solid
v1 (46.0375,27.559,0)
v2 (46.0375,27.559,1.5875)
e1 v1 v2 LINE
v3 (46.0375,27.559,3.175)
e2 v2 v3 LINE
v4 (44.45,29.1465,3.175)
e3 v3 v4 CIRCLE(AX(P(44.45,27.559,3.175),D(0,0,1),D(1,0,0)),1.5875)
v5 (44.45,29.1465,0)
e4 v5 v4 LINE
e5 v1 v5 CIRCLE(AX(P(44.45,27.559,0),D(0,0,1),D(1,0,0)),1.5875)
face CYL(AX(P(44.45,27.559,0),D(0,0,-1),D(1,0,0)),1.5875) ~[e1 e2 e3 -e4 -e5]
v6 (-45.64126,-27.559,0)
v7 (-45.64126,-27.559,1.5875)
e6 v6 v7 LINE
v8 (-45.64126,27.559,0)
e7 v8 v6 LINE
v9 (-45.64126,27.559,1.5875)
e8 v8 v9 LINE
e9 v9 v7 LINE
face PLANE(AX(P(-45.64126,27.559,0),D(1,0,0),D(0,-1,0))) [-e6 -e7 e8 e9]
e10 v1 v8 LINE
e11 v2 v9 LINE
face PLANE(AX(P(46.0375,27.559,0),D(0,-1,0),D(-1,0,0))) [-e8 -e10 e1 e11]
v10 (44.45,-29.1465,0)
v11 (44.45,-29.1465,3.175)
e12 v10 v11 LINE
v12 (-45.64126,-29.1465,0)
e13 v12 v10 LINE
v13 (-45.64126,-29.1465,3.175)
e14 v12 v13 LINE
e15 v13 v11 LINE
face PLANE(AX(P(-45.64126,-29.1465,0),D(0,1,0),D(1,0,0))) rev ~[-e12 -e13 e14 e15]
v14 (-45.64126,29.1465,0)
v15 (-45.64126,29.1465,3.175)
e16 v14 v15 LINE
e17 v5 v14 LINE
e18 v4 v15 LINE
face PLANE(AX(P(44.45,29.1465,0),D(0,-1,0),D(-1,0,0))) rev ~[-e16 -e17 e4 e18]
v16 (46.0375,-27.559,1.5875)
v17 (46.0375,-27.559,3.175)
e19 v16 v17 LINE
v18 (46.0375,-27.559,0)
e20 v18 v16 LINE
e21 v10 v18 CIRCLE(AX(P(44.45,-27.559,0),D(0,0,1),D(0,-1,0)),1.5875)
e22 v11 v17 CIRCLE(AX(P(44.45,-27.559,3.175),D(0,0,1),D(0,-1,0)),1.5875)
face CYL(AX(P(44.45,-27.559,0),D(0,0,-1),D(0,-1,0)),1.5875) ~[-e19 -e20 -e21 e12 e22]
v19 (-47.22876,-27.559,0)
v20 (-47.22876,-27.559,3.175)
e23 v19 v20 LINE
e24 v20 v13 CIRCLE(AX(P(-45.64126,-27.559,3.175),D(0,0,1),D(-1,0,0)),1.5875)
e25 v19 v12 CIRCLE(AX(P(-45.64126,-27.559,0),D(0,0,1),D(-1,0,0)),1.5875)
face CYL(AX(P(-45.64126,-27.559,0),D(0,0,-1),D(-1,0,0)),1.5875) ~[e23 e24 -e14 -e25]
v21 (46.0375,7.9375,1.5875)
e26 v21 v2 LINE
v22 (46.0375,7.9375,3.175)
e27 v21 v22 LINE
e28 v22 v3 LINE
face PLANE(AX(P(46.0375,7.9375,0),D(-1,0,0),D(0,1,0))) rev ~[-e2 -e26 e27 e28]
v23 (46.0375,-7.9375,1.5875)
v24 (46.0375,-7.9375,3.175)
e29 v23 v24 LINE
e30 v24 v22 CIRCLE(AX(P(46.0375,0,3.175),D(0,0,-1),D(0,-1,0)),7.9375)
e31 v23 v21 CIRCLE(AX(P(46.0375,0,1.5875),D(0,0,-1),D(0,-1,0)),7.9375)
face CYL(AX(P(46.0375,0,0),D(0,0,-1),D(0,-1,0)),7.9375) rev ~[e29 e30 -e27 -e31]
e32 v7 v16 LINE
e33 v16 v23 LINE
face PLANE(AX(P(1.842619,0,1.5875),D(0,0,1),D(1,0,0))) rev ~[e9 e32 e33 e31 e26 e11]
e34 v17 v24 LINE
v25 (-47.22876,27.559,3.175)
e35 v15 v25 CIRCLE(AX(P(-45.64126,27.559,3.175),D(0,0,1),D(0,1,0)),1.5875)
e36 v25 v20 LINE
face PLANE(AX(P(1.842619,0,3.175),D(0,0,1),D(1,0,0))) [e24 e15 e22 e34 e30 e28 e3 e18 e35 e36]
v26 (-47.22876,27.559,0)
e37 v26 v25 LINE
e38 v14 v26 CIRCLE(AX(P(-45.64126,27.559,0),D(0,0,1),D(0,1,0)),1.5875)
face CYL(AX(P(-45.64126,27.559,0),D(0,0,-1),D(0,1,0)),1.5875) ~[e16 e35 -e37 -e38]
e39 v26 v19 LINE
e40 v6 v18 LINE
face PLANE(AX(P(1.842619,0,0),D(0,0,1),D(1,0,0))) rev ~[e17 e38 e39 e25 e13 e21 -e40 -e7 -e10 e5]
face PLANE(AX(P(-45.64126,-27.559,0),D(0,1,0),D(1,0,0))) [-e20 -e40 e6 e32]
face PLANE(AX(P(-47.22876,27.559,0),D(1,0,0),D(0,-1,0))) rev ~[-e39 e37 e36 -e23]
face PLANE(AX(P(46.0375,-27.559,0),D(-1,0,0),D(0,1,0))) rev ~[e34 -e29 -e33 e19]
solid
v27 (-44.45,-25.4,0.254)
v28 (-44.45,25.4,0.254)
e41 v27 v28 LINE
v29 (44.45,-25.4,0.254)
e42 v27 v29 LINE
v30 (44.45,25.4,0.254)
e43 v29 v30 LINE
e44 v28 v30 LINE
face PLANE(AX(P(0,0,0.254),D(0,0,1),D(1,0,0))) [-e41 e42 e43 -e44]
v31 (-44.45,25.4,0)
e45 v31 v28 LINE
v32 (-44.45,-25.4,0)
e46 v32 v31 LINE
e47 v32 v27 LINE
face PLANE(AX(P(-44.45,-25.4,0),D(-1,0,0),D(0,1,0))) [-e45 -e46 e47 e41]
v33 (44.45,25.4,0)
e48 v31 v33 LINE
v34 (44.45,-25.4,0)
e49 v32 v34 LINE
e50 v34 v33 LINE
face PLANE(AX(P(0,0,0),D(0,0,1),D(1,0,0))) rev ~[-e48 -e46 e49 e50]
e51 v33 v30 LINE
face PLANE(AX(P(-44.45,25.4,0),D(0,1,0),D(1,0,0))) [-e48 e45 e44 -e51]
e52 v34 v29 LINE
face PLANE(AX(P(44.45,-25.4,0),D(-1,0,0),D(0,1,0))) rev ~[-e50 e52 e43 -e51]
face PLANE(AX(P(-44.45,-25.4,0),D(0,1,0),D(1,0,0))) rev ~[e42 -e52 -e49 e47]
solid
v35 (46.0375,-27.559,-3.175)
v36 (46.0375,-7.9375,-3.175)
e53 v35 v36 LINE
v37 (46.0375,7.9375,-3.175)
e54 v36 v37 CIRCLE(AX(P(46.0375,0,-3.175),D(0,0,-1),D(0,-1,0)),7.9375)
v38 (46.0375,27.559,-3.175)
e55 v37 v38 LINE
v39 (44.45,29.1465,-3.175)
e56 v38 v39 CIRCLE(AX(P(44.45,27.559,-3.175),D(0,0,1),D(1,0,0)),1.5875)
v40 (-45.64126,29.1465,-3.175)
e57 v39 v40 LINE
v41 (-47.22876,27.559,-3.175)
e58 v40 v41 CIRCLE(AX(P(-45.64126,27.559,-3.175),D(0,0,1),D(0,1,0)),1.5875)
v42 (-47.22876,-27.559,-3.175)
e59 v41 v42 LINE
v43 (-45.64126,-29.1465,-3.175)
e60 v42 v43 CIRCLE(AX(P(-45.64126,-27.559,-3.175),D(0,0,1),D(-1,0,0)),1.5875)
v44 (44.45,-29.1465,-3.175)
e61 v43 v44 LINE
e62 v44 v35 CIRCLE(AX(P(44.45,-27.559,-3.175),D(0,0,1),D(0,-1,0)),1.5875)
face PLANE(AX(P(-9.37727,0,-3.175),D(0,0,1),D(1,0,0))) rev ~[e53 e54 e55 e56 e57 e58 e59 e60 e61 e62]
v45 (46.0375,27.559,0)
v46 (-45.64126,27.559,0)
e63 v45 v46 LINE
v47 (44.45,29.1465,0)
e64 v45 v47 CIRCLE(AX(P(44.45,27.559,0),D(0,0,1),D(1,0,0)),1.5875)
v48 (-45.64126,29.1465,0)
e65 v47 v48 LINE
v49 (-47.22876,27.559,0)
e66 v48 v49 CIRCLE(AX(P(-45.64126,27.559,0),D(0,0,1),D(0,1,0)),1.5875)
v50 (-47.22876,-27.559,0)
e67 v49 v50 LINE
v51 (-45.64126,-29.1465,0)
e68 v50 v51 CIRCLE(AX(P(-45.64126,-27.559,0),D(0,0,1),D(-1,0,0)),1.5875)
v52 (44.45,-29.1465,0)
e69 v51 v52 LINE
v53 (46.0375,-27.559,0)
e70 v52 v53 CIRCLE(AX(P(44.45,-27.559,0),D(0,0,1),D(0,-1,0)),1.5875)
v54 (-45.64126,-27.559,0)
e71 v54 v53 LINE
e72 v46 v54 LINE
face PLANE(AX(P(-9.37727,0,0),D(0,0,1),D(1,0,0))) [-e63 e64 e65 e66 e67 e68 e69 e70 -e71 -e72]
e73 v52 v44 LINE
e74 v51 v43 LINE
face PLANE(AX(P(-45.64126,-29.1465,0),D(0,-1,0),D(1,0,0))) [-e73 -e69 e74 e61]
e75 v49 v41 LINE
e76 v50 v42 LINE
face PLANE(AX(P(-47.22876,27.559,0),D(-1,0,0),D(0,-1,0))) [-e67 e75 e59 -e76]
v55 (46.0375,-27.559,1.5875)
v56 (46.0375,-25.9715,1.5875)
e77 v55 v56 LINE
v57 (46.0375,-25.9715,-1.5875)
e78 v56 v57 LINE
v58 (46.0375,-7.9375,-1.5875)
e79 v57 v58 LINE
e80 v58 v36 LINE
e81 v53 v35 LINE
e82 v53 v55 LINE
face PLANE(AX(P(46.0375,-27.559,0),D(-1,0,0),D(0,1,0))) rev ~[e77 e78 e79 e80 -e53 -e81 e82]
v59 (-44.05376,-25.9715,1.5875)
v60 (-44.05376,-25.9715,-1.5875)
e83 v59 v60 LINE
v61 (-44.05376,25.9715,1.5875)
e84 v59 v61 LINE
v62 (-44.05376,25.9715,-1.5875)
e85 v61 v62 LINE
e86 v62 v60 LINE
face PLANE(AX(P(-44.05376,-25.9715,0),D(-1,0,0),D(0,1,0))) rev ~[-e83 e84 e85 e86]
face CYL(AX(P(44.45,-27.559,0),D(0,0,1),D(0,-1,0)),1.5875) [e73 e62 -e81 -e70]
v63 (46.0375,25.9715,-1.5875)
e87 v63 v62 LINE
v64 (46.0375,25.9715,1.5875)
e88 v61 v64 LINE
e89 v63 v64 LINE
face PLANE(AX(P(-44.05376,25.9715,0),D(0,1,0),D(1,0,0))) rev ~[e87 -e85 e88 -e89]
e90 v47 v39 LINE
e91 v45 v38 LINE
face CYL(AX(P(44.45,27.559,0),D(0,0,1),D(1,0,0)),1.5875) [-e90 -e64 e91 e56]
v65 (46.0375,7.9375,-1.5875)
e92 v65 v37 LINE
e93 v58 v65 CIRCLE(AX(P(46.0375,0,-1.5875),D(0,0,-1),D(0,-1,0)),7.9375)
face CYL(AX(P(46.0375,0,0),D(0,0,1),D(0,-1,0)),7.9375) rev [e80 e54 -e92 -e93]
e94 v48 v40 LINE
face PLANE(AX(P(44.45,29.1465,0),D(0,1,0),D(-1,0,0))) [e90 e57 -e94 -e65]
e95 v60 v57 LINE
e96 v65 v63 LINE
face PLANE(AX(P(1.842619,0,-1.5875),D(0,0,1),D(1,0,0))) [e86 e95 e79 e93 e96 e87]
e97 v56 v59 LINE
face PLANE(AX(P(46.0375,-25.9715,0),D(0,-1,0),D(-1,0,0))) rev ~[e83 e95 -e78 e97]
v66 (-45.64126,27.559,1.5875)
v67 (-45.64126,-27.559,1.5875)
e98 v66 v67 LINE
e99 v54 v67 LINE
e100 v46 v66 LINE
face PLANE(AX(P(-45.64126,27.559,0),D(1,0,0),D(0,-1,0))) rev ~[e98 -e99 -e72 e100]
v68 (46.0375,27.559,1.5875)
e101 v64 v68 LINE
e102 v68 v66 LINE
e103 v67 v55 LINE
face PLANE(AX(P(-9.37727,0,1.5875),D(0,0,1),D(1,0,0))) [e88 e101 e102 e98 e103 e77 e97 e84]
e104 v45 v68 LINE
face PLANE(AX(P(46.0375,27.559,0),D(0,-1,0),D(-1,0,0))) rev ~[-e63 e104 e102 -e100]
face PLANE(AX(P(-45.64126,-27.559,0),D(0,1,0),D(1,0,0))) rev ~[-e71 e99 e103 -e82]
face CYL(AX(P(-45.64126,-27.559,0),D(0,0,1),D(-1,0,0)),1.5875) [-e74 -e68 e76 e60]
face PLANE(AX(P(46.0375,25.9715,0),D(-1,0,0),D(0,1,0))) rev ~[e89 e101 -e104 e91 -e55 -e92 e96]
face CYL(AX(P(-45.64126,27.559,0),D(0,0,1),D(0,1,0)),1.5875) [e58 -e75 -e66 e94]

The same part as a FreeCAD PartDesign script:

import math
import FreeCAD as App
import Part
import Sketcher
from FreeCAD import Vector
Q = App.Units.Quantity


def add_polygon(sketch, points):
    """Adds a closed chain of lines whose ends are joined by coincident constraints."""
    first, n = sketch.GeometryCount, len(points)
    for a, b in zip(points, points[1:] + points[:1]):
        sketch.addGeometry(Part.LineSegment(App.Vector(*a, 0), App.Vector(*b, 0)), False)
    for i in range(n):
        sketch.addConstraint(Sketcher.Constraint("Coincident", first + i, 2, first + (i + 1) % n, 1))

doc = App.newDocument("Part")
params = doc.addObject("Spreadsheet::Sheet", "Params")
for row, (alias, value) in enumerate([
    ("sketch1_height", "2 in"),
    ("sketch1_width", "3.5 in"),
    ("pad1_length", "0.01 in"),
    ("sketch2_radius", "0.3125 in"),
    ("sketch2_radius2", "0.0625 in"),
    ("sketch2_height", "2.17 in"),
    ("pad2_length", "0.125 in"),
    ("sketch3_radius", "0.3125 in"),
    ("sketch3_height", "0.71 in"),
    ("pocket1_length", "0.0625 in"),
    ("sketch4_height", "2.17 in"),
    ("sketch4_height2", "0.0625 in"),
    ("pad3_length", "0.0625 in"),
    ("sketch5_radius", "0.0625 in"),
    ("sketch5_radius2", "0.3125 in"),
    ("sketch5_height", "2.17 in"),
    ("pad4_length", "0.125 in"),
    ("sketch6_radius", "0.3125 in"),
    ("sketch6_height", "2.17 in"),
    ("pocket2_length", "0.0625 in"),
], start=1):
    params.set(f"A{row}", alias)
    params.set(f"B{row}", "=" + value)
    params.setAlias(f"B{row}", alias)

body = doc.addObject("PartDesign::Body", "Body")

sketch1 = body.newObject("Sketcher::SketchObject", "Sketch")
sketch1.AttachmentSupport = (doc.getObject("XY_Plane"), [""])
sketch1.MapMode = "FlatFace"
add_polygon(sketch1, [(-44.45, 25.4), (-44.45, -25.4), (44.45, -25.4), (44.45, 25.4)])
sketch1.addConstraint(Sketcher.Constraint("Vertical", 0))
sketch1.addConstraint(Sketcher.Constraint("Horizontal", 1))
sketch1.addConstraint(Sketcher.Constraint("Vertical", 2))
sketch1.addConstraint(Sketcher.Constraint("Horizontal", 3))
sketch1.addConstraint(Sketcher.Constraint("Symmetric", 0, 2, 2, 2, -1, 1))
sketch1.addConstraint(Sketcher.Constraint("DistanceY", 0, 2, 0, 1, Q("2 in")))
sketch1.addConstraint(Sketcher.Constraint("DistanceX", 1, 1, 1, 2, Q("3.5 in")))
sketch1.setExpression("Constraints[9]", "Params.sketch1_height")
sketch1.setExpression("Constraints[10]", "Params.sketch1_width")
pad1 = body.newObject("PartDesign::Pad", "Pad")
pad1.Profile = sketch1
pad1.setExpression("Length", "Params.pad1_length")
body2 = doc.addObject("PartDesign::Body", "Body001")

sketch2 = body2.newObject("Sketcher::SketchObject", "Sketch001")
sketch2.AttachmentSupport = (doc.getObject("XY_Plane001"), [""])
sketch2.MapMode = "FlatFace"
sketch2.addGeometry(Part.LineSegment(Vector(46.0375, -27.559, 0), Vector(46.0375, -7.9375, 0)), False)
sketch2.addGeometry(Part.ArcOfCircle(Part.Circle(Vector(46.0375, 0, 0), Vector(0, 0, 1), 7.9375), math.radians(90), math.radians(270)), False)
sketch2.addGeometry(Part.LineSegment(Vector(46.0375, 7.9375, 0), Vector(46.0375, 27.559, 0)), False)
sketch2.addGeometry(Part.ArcOfCircle(Part.Circle(Vector(44.45, 27.559, 0), Vector(0, 0, 1), 1.5875), math.radians(0), math.radians(90)), False)
sketch2.addGeometry(Part.LineSegment(Vector(44.45, 29.1465, 0), Vector(-45.64126, 29.1465, 0)), False)
sketch2.addGeometry(Part.ArcOfCircle(Part.Circle(Vector(-45.64126, 27.559, 0), Vector(0, 0, 1), 1.5875), math.radians(90), math.radians(180)), False)
sketch2.addGeometry(Part.LineSegment(Vector(-47.22876, 27.559, 0), Vector(-47.22876, -27.559, 0)), False)
sketch2.addGeometry(Part.ArcOfCircle(Part.Circle(Vector(-45.64126, -27.559, 0), Vector(0, 0, 1), 1.5875), math.radians(180), math.radians(270)), False)
sketch2.addGeometry(Part.LineSegment(Vector(-45.64126, -29.1465, 0), Vector(44.45, -29.1465, 0)), False)
sketch2.addGeometry(Part.ArcOfCircle(Part.Circle(Vector(44.45, -27.559, 0), Vector(0, 0, 1), 1.5875), math.radians(-90), math.radians(0)), False)
sketch2.addConstraint(Sketcher.Constraint("Coincident", 0, 2, 1, 2))
sketch2.addConstraint(Sketcher.Constraint("Coincident", 1, 1, 2, 1))
sketch2.addConstraint(Sketcher.Constraint("Tangent", 2, 2, 3, 1))
sketch2.addConstraint(Sketcher.Constraint("Tangent", 3, 2, 4, 1))
sketch2.addConstraint(Sketcher.Constraint("Tangent", 4, 2, 5, 1))
sketch2.addConstraint(Sketcher.Constraint("Tangent", 5, 2, 6, 1))
sketch2.addConstraint(Sketcher.Constraint("Tangent", 6, 2, 7, 1))
sketch2.addConstraint(Sketcher.Constraint("Tangent", 7, 2, 8, 1))
sketch2.addConstraint(Sketcher.Constraint("Tangent", 8, 2, 9, 1))
sketch2.addConstraint(Sketcher.Constraint("Tangent", 9, 2, 0, 1))
sketch2.addConstraint(Sketcher.Constraint("Vertical", 0))
sketch2.addConstraint(Sketcher.Constraint("Vertical", 2))
sketch2.addConstraint(Sketcher.Constraint("Horizontal", 4))
sketch2.addConstraint(Sketcher.Constraint("Vertical", 6))
sketch2.addConstraint(Sketcher.Constraint("Horizontal", 8))
sketch2.addConstraint(Sketcher.Constraint("Equal", 3, 5))
sketch2.addConstraint(Sketcher.Constraint("Equal", 5, 7))
sketch2.addConstraint(Sketcher.Constraint("Equal", 7, 9))
sketch2.addConstraint(Sketcher.Constraint("Symmetric", 3, 3, 9, 3, -1))
sketch2.addConstraint(Sketcher.Constraint("PointOnObject", 1, 3, -1))
sketch2.addConstraint(Sketcher.Constraint("Vertical", 1, 3, 0, 2))
sketch2.addConstraint(Sketcher.Constraint("Radius", 1, Q("0.3125 in")))
sketch2.addConstraint(Sketcher.Constraint("Radius", 3, Q("0.0625 in")))
sketch2.addConstraint(Sketcher.Constraint("DistanceY", 6, 2, 6, 1, Q("2.17 in")))
sketch2.addConstraint(Sketcher.Constraint("DistanceX", -1, 1, 3, 3, Q("1.75 in")))
sketch2.addConstraint(Sketcher.Constraint("DistanceX", 4, 2, 4, 1, Q("3.5469 in")))
sketch2.setExpression("Constraints[21]", "Params.sketch2_radius")
sketch2.setExpression("Constraints[22]", "Params.sketch2_radius2")
sketch2.setExpression("Constraints[23]", "Params.sketch2_height")
pad2 = body2.newObject("PartDesign::Pad", "Pad001")
pad2.Profile = sketch2
pad2.setExpression("Length", "Params.pad2_length")
pad2.Reversed = True

sketch3 = body2.newObject("Sketcher::SketchObject", "Sketch002")
sketch3.AttachmentSupport = (doc.getObject("XY_Plane001"), [""])
sketch3.MapMode = "FlatFace"
sketch3.addGeometry(Part.LineSegment(Vector(46.0375, 7.9375, 0), Vector(46.0375, 25.9715, 0)), False)
sketch3.addGeometry(Part.LineSegment(Vector(46.0375, 25.9715, 0), Vector(-44.05376, 25.9715, 0)), False)
sketch3.addGeometry(Part.LineSegment(Vector(-44.05376, 25.9715, 0), Vector(-44.05376, -25.9715, 0)), False)
sketch3.addGeometry(Part.LineSegment(Vector(-44.05376, -25.9715, 0), Vector(46.0375, -25.9715, 0)), False)
sketch3.addGeometry(Part.LineSegment(Vector(46.0375, -25.9715, 0), Vector(46.0375, -7.9375, 0)), False)
sketch3.addGeometry(Part.ArcOfCircle(Part.Circle(Vector(46.0375, 0, 0), Vector(0, 0, 1), 7.9375), math.radians(90), math.radians(270)), False)
sketch3.addConstraint(Sketcher.Constraint("Coincident", 0, 2, 1, 1))
sketch3.addConstraint(Sketcher.Constraint("Coincident", 1, 2, 2, 1))
sketch3.addConstraint(Sketcher.Constraint("Coincident", 2, 2, 3, 1))
sketch3.addConstraint(Sketcher.Constraint("Coincident", 3, 2, 4, 1))
sketch3.addConstraint(Sketcher.Constraint("Coincident", 4, 2, 5, 2))
sketch3.addConstraint(Sketcher.Constraint("Coincident", 5, 1, 0, 1))
sketch3.addConstraint(Sketcher.Constraint("Vertical", 0))
sketch3.addConstraint(Sketcher.Constraint("Horizontal", 1))
sketch3.addConstraint(Sketcher.Constraint("Vertical", 2))
sketch3.addConstraint(Sketcher.Constraint("Horizontal", 3))
sketch3.addConstraint(Sketcher.Constraint("Vertical", 4))
sketch3.addConstraint(Sketcher.Constraint("Symmetric", 0, 2, 3, 2, -1))
sketch3.addConstraint(Sketcher.Constraint("PointOnObject", 5, 3, -1))
sketch3.addConstraint(Sketcher.Constraint("Vertical", 5, 3, 0, 2))
sketch3.addConstraint(Sketcher.Constraint("Radius", 5, Q("0.3125 in")))
sketch3.addConstraint(Sketcher.Constraint("DistanceY", 0, 1, 0, 2, Q("0.71 in")))
sketch3.addConstraint(Sketcher.Constraint("DistanceX", 1, 2, 1, 1, Q("3.5469 in")))
sketch3.addConstraint(Sketcher.Constraint("DistanceX", -1, 1, 5, 3, Q("1.8125 in")))
sketch3.setExpression("Constraints[14]", "Params.sketch3_radius")
sketch3.setExpression("Constraints[15]", "Params.sketch3_height")
pocket1 = body2.newObject("PartDesign::Pocket", "Pocket")
pocket1.Profile = sketch3
pocket1.setExpression("Length", "Params.pocket1_length")

sketch4 = body2.newObject("Sketcher::SketchObject", "Sketch003")
sketch4.AttachmentSupport = (doc.getObject("XY_Plane001"), [""])
sketch4.MapMode = "FlatFace"
add_polygon(sketch4, [(-44.05376, 25.9715), (46.0375, 25.9715), (46.0375, 27.559), (-45.64126, 27.559), (-45.64126, -27.559), (46.0375, -27.559), (46.0375, -25.9715), (-44.05376, -25.9715)])
sketch4.addConstraint(Sketcher.Constraint("Horizontal", 0))
sketch4.addConstraint(Sketcher.Constraint("Vertical", 1))
sketch4.addConstraint(Sketcher.Constraint("Horizontal", 2))
sketch4.addConstraint(Sketcher.Constraint("Vertical", 3))
sketch4.addConstraint(Sketcher.Constraint("Horizontal", 4))
sketch4.addConstraint(Sketcher.Constraint("Vertical", 5))
sketch4.addConstraint(Sketcher.Constraint("Horizontal", 6))
sketch4.addConstraint(Sketcher.Constraint("Vertical", 7))
sketch4.addConstraint(Sketcher.Constraint("Symmetric", 1, 2, 4, 2, -1))
sketch4.addConstraint(Sketcher.Constraint("Equal", 1, 5))
sketch4.addConstraint(Sketcher.Constraint("DistanceY", 3, 2, 3, 1, Q("2.17 in")))
sketch4.addConstraint(Sketcher.Constraint("DistanceY", 1, 1, 1, 2, Q("0.0625 in")))
sketch4.addConstraint(Sketcher.Constraint("DistanceX", 0, 1, 0, 2, Q("3.5469 in")))
sketch4.addConstraint(Sketcher.Constraint("DistanceX", 2, 2, 2, 1, Q("3.6094 in")))
sketch4.addConstraint(Sketcher.Constraint("DistanceX", -1, 1, 0, 2, Q("1.8125 in")))
sketch4.setExpression("Constraints[18]", "Params.sketch4_height")
sketch4.setExpression("Constraints[19]", "Params.sketch4_height2")
pad3 = body2.newObject("PartDesign::Pad", "Pad002")
pad3.Profile = sketch4
pad3.setExpression("Length", "Params.pad3_length")
body3 = doc.addObject("PartDesign::Body", "Body002")

sketch5 = body3.newObject("Sketcher::SketchObject", "Sketch004")
sketch5.AttachmentSupport = (doc.getObject("XY_Plane002"), [""])
sketch5.MapMode = "FlatFace"
sketch5.addGeometry(Part.LineSegment(Vector(46.0375, 7.9375, 0), Vector(46.0375, 27.559, 0)), False)
sketch5.addGeometry(Part.ArcOfCircle(Part.Circle(Vector(44.45, 27.559, 0), Vector(0, 0, 1), 1.5875), math.radians(0), math.radians(90)), False)
sketch5.addGeometry(Part.LineSegment(Vector(44.45, 29.1465, 0), Vector(-45.64126, 29.1465, 0)), False)
sketch5.addGeometry(Part.ArcOfCircle(Part.Circle(Vector(-45.64126, 27.559, 0), Vector(0, 0, 1), 1.5875), math.radians(90), math.radians(180)), False)
sketch5.addGeometry(Part.LineSegment(Vector(-47.22876, 27.559, 0), Vector(-47.22876, -27.559, 0)), False)
sketch5.addGeometry(Part.ArcOfCircle(Part.Circle(Vector(-45.64126, -27.559, 0), Vector(0, 0, 1), 1.5875), math.radians(180), math.radians(270)), False)
sketch5.addGeometry(Part.LineSegment(Vector(-45.64126, -29.1465, 0), Vector(44.45, -29.1465, 0)), False)
sketch5.addGeometry(Part.ArcOfCircle(Part.Circle(Vector(44.45, -27.559, 0), Vector(0, 0, 1), 1.5875), math.radians(-90), math.radians(0)), False)
sketch5.addGeometry(Part.LineSegment(Vector(46.0375, -27.559, 0), Vector(46.0375, -7.9375, 0)), False)
sketch5.addGeometry(Part.ArcOfCircle(Part.Circle(Vector(46.0375, 0, 0), Vector(0, 0, 1), 7.9375), math.radians(90), math.radians(270)), False)
sketch5.addConstraint(Sketcher.Constraint("Tangent", 0, 2, 1, 1))
sketch5.addConstraint(Sketcher.Constraint("Tangent", 1, 2, 2, 1))
sketch5.addConstraint(Sketcher.Constraint("Tangent", 2, 2, 3, 1))
sketch5.addConstraint(Sketcher.Constraint("Tangent", 3, 2, 4, 1))
sketch5.addConstraint(Sketcher.Constraint("Tangent", 4, 2, 5, 1))
sketch5.addConstraint(Sketcher.Constraint("Tangent", 5, 2, 6, 1))
sketch5.addConstraint(Sketcher.Constraint("Tangent", 6, 2, 7, 1))
sketch5.addConstraint(Sketcher.Constraint("Tangent", 7, 2, 8, 1))
sketch5.addConstraint(Sketcher.Constraint("Coincident", 8, 2, 9, 2))
sketch5.addConstraint(Sketcher.Constraint("Coincident", 9, 1, 0, 1))
sketch5.addConstraint(Sketcher.Constraint("Vertical", 0))
sketch5.addConstraint(Sketcher.Constraint("Horizontal", 2))
sketch5.addConstraint(Sketcher.Constraint("Vertical", 4))
sketch5.addConstraint(Sketcher.Constraint("Horizontal", 6))
sketch5.addConstraint(Sketcher.Constraint("Vertical", 8))
sketch5.addConstraint(Sketcher.Constraint("Equal", 1, 3))
sketch5.addConstraint(Sketcher.Constraint("Equal", 3, 5))
sketch5.addConstraint(Sketcher.Constraint("Equal", 5, 7))
sketch5.addConstraint(Sketcher.Constraint("Symmetric", 1, 3, 7, 3, -1))
sketch5.addConstraint(Sketcher.Constraint("PointOnObject", 9, 3, -1))
sketch5.addConstraint(Sketcher.Constraint("Vertical", 9, 3, 0, 2))
sketch5.addConstraint(Sketcher.Constraint("Radius", 1, Q("0.0625 in")))
sketch5.addConstraint(Sketcher.Constraint("Radius", 9, Q("0.3125 in")))
sketch5.addConstraint(Sketcher.Constraint("DistanceY", 4, 2, 4, 1, Q("2.17 in")))
sketch5.addConstraint(Sketcher.Constraint("DistanceX", -1, 1, 1, 3, Q("1.75 in")))
sketch5.addConstraint(Sketcher.Constraint("DistanceX", 2, 2, 2, 1, Q("3.5469 in")))
sketch5.setExpression("Constraints[21]", "Params.sketch5_radius")
sketch5.setExpression("Constraints[22]", "Params.sketch5_radius2")
sketch5.setExpression("Constraints[23]", "Params.sketch5_height")
pad4 = body3.newObject("PartDesign::Pad", "Pad003")
pad4.Profile = sketch5
pad4.setExpression("Length", "Params.pad4_length")

sketch6 = body3.newObject("Sketcher::SketchObject", "Sketch005")
sketch6.AttachmentSupport = (doc.getObject("XY_Plane002"), [""])
sketch6.MapMode = "FlatFace"
sketch6.addGeometry(Part.LineSegment(Vector(46.0375, 7.9375, 0), Vector(46.0375, 27.559, 0)), False)
sketch6.addGeometry(Part.LineSegment(Vector(46.0375, 27.559, 0), Vector(-45.64126, 27.559, 0)), False)
sketch6.addGeometry(Part.LineSegment(Vector(-45.64126, 27.559, 0), Vector(-45.64126, -27.559, 0)), False)
sketch6.addGeometry(Part.LineSegment(Vector(-45.64126, -27.559, 0), Vector(46.0375, -27.559, 0)), False)
sketch6.addGeometry(Part.LineSegment(Vector(46.0375, -27.559, 0), Vector(46.0375, -7.9375, 0)), False)
sketch6.addGeometry(Part.ArcOfCircle(Part.Circle(Vector(46.0375, 0, 0), Vector(0, 0, 1), 7.9375), math.radians(90), math.radians(270)), False)
sketch6.addConstraint(Sketcher.Constraint("Coincident", 0, 2, 1, 1))
sketch6.addConstraint(Sketcher.Constraint("Coincident", 1, 2, 2, 1))
sketch6.addConstraint(Sketcher.Constraint("Coincident", 2, 2, 3, 1))
sketch6.addConstraint(Sketcher.Constraint("Coincident", 3, 2, 4, 1))
sketch6.addConstraint(Sketcher.Constraint("Coincident", 4, 2, 5, 2))
sketch6.addConstraint(Sketcher.Constraint("Coincident", 5, 1, 0, 1))
sketch6.addConstraint(Sketcher.Constraint("Vertical", 0))
sketch6.addConstraint(Sketcher.Constraint("Horizontal", 1))
sketch6.addConstraint(Sketcher.Constraint("Vertical", 2))
sketch6.addConstraint(Sketcher.Constraint("Horizontal", 3))
sketch6.addConstraint(Sketcher.Constraint("Vertical", 4))
sketch6.addConstraint(Sketcher.Constraint("Symmetric", 0, 2, 3, 2, -1))
sketch6.addConstraint(Sketcher.Constraint("PointOnObject", 5, 3, -1))
sketch6.addConstraint(Sketcher.Constraint("Vertical", 5, 3, 0, 2))
sketch6.addConstraint(Sketcher.Constraint("Radius", 5, Q("0.3125 in")))
sketch6.addConstraint(Sketcher.Constraint("DistanceY", 2, 2, 2, 1, Q("2.17 in")))
sketch6.addConstraint(Sketcher.Constraint("DistanceX", 1, 2, 1, 1, Q("3.6094 in")))
sketch6.addConstraint(Sketcher.Constraint("DistanceX", -1, 1, 5, 3, Q("1.8125 in")))
sketch6.setExpression("Constraints[14]", "Params.sketch6_radius")
sketch6.setExpression("Constraints[15]", "Params.sketch6_height")
pocket2 = body3.newObject("PartDesign::Pocket", "Pocket001")
pocket2.Profile = sketch6
pocket2.setExpression("Length", "Params.pocket2_length")
pocket2.Reversed = True

doc.recompute()
